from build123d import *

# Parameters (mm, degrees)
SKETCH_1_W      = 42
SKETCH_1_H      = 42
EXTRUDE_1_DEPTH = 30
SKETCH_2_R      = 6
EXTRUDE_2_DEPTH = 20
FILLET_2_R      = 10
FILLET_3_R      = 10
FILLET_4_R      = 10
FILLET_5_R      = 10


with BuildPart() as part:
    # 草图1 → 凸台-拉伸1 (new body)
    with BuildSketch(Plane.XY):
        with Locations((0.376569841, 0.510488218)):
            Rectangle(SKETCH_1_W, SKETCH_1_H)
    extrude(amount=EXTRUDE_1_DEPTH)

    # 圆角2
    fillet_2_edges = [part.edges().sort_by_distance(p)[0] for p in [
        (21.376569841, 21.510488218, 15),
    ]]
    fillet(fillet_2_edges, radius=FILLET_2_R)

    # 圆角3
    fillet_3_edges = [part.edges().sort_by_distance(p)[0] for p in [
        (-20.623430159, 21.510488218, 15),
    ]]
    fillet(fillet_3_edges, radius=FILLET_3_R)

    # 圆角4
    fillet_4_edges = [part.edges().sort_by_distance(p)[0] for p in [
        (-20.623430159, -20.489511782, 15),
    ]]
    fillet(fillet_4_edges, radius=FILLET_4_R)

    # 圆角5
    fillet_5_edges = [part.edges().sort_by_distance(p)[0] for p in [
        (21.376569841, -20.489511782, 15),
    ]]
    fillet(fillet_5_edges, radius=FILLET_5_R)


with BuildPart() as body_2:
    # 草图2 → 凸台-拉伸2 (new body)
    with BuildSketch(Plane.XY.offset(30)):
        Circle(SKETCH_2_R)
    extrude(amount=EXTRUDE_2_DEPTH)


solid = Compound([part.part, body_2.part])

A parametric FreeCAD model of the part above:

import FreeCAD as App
import Part
import Sketcher
Q = App.Units.Quantity


def edges_at(feature, points):
    """Names of the edges that pass closest to the given points."""
    edges = feature.Shape.Edges
    near = lambda p: min(range(len(edges)), key=lambda i: edges[i].distToShape(Part.Vertex(*p))[0])
    return sorted({f"Edge{near(p) + 1}" for p in points})

doc = App.newDocument("Part")
body = doc.addObject("PartDesign::Body", "Body")

# Sketch on XY plane
sketch1 = body.newObject("Sketcher::SketchObject", "Sketch")
sketch1.AttachmentSupport = (doc.getObject("XY_Plane"), [""])
sketch1.MapMode = "FlatFace"
sketch1.addGeometry([
    Part.LineSegment(App.Vector(-21, 22, 0), App.Vector(-21, -20, 0)),
    Part.LineSegment(App.Vector(-21, -20, 0), App.Vector(21, -20, 0)),
    Part.LineSegment(App.Vector(21, -20, 0), App.Vector(21, 22, 0)),
    Part.LineSegment(App.Vector(21, 22, 0), App.Vector(-21, 22, 0)),
], False)
sketch1.addConstraint([
    Sketcher.Constraint("Coincident", 0, 2, 1, 1),
    Sketcher.Constraint("Coincident", 1, 2, 2, 1),
    Sketcher.Constraint("Coincident", 2, 2, 3, 1),
    Sketcher.Constraint("Coincident", 3, 2, 0, 1),
    Sketcher.Constraint("Vertical", 0),
    Sketcher.Constraint("Horizontal", 1),
    Sketcher.Constraint("Vertical", 2),
    Sketcher.Constraint("Horizontal", 3),
    Sketcher.Constraint("Equal", 3, 0),
    Sketcher.Constraint("DistanceX", 1, 1, 1, 2, Q("42 mm")),
    Sketcher.Constraint("DistanceX", 0, 2, -1, 1, Q("20.62343 mm")),
    Sketcher.Constraint("DistanceY", 0, 2, -1, 1, Q("20.489512 mm")),
])
pad1 = body.newObject("PartDesign::Pad", "Pad")
pad1.Profile = sketch1
pad1.Length = 30
doc.recompute()

fillet = body.newObject("PartDesign::Fillet", "Fillet")
fillet.Base = (pad1, edges_at(pad1, [(21.377, 21.51, 15)]))
fillet.Radius = 10
doc.recompute()

fillet2 = body.newObject("PartDesign::Fillet", "Fillet001")
fillet2.Base = (fillet, edges_at(fillet, [(-20.623, 21.51, 15)]))
fillet2.Radius = 10
doc.recompute()

fillet3 = body.newObject("PartDesign::Fillet", "Fillet002")
fillet3.Base = (fillet2, edges_at(fillet2, [(-20.623, -20.49, 15)]))
fillet3.Radius = 10
doc.recompute()

fillet4 = body.newObject("PartDesign::Fillet", "Fillet003")
fillet4.Base = (fillet3, edges_at(fillet3, [(21.377, -20.49, 15)]))
fillet4.Radius = 10
body2 = doc.addObject("PartDesign::Body", "Body001")

# Sketch on XY plane
sketch2 = body2.newObject("Sketcher::SketchObject", "Sketch001")
sketch2.AttachmentSupport = (doc.getObject("XY_Plane001"), [""])
sketch2.MapMode = "FlatFace"
sketch2.AttachmentOffset = App.Placement(App.Vector(0, 0, 30), App.Rotation())
sketch2.addGeometry(Part.Circle(App.Vector(0, 0, 0), App.Vector(0, 0, 1), 6), False)
sketch2.addConstraint([
    Sketcher.Constraint("Coincident", 0, 3, -1, 1),
    Sketcher.Constraint("Diameter", 0, Q("12 mm")),
])
pad2 = body2.newObject("PartDesign::Pad", "Pad001")
pad2.Profile = sketch2
pad2.Length = 20

doc.recompute()
